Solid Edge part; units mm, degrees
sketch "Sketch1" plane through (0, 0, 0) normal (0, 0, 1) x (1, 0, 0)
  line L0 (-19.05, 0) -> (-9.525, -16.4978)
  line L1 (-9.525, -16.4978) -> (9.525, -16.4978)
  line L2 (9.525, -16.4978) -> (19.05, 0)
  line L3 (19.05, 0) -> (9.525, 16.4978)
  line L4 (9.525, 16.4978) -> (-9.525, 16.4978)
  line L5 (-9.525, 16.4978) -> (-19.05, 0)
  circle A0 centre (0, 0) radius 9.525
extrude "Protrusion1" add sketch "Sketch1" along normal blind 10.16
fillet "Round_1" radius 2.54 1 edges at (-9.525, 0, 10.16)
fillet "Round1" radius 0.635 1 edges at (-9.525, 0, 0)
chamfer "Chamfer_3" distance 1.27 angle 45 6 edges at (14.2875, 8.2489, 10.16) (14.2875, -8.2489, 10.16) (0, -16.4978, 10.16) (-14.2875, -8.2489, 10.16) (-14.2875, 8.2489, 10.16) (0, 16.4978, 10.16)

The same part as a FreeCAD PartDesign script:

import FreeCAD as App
import Part
import Sketcher
Q = App.Units.Quantity


def edges_at(feature, points):
    """Names of the edges that pass closest to the given points."""
    edges = feature.Shape.Edges
    near = lambda p: min(range(len(edges)), key=lambda i: edges[i].distToShape(Part.Vertex(*p))[0])
    return sorted({f"Edge{near(p) + 1}" for p in points})

doc = App.newDocument("Part")
body = doc.addObject("PartDesign::Body", "Body")

# Sketch on XY plane
sketch1 = body.newObject("Sketcher::SketchObject", "Sketch")
sketch1.AttachmentSupport = (doc.getObject("XY_Plane"), [""])
sketch1.MapMode = "FlatFace"
sketch1.addGeometry([
    Part.LineSegment(App.Vector(-10, 16, 0), App.Vector(-19, 0, 0)),  # 0
    Part.LineSegment(App.Vector(-19, 0, 0), App.Vector(-10, -16, 0)),  # 1
    Part.LineSegment(App.Vector(-10, -16, 0), App.Vector(10, -16, 0)),  # 2
    Part.LineSegment(App.Vector(10, -16, 0), App.Vector(19, 0, 0)),  # 3
    Part.LineSegment(App.Vector(19, 0, 0), App.Vector(10, 16, 0)),  # 4
    Part.LineSegment(App.Vector(10, 16, 0), App.Vector(-10, 16, 0)),  # 5
    Part.Circle(App.Vector(0, 0, 0), App.Vector(0, 0, 1), 10),  # 6
], False)
sketch1.addConstraint([
    Sketcher.Constraint("Coincident", 0, 2, 1, 1),
    Sketcher.Constraint("Coincident", 1, 2, 2, 1),
    Sketcher.Constraint("Coincident", 2, 2, 3, 1),
    Sketcher.Constraint("Coincident", 3, 2, 4, 1),
    Sketcher.Constraint("Coincident", 4, 2, 5, 1),
    Sketcher.Constraint("Coincident", 5, 2, 0, 1),
    Sketcher.Constraint("Horizontal", 2),
    Sketcher.Constraint("Horizontal", 5),
    Sketcher.Constraint("Coincident", 6, 3, -1, 1),
    Sketcher.Constraint("Symmetric", 0, 2, 3, 2, -1, 1),
    Sketcher.Constraint("Symmetric", 1, 2, 4, 2, -1, 1),
    Sketcher.Constraint("PointOnObject", 0, 2, -1),
    Sketcher.Constraint("Parallel", 0, 3),
    Sketcher.Constraint("Vertical", 2, 2, 4, 2),
    Sketcher.Constraint("Diameter", 6, Q("0.75 in")),
    Sketcher.Constraint("Angle", 0, Q("-120 deg")),
    Sketcher.Constraint("DistanceX", 2, 1, 2, 2, Q("0.75 in")),
    Sketcher.Constraint("DistanceX", 0, 2, 3, 2, Q("1.5 in")),
])
pad1 = body.newObject("PartDesign::Pad", "Pad")
pad1.Profile = sketch1
pad1.Length = Q("0.4 in")
doc.recompute()

fillet = body.newObject("PartDesign::Fillet", "Fillet")
fillet.Base = (pad1, edges_at(pad1, [(-9.525, 0, 10.16)]))
fillet.Radius = Q("0.1 in")
doc.recompute()

fillet2 = body.newObject("PartDesign::Fillet", "Fillet001")
fillet2.Base = (fillet, edges_at(fillet, [(-9.525, 0, 0)]))
fillet2.Radius = Q("0.025 in")
doc.recompute()

chamfer = body.newObject("PartDesign::Chamfer", "Chamfer")
chamfer.Base = (fillet2, edges_at(fillet2, [
    (14.287, 8.249, 10.16),
    (14.287, -8.249, 10.16),
    (0, -16.498, 10.16),
    (-14.287, -8.249, 10.16),
    (-14.287, 8.249, 10.16),
    (0, 16.498, 10.16),
]))
chamfer.Size = Q("0.05 in")

doc.recompute()
